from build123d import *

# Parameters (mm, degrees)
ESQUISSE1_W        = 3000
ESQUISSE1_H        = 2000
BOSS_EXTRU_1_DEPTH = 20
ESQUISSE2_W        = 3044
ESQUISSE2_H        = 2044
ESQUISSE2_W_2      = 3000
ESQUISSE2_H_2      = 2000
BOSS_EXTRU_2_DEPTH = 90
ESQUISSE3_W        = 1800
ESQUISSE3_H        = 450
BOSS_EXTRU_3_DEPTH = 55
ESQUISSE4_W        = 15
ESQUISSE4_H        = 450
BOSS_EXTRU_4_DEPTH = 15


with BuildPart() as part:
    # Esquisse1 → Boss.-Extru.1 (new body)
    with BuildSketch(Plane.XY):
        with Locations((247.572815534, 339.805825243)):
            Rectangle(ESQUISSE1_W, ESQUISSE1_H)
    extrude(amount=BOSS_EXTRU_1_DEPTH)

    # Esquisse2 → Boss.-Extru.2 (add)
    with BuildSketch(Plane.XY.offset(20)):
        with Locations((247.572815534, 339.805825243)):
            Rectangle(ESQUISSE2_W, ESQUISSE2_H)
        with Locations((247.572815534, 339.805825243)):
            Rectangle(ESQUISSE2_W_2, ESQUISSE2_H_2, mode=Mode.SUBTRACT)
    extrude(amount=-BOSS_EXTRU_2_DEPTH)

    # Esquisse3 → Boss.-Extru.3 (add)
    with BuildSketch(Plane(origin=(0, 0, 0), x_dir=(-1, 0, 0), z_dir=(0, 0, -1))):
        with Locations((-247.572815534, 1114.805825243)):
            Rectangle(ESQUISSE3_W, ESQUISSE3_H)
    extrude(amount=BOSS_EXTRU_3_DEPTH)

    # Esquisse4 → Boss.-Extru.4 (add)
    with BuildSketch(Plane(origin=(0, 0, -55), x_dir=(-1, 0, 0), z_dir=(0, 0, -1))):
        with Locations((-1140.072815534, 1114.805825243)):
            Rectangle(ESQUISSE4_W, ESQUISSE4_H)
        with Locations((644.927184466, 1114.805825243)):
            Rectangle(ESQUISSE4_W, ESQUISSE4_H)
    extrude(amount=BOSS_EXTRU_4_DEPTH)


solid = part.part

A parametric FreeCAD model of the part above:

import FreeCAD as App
import Part
import Sketcher
from FreeCAD import Vector

doc = App.newDocument("Part")
body = doc.addObject("PartDesign::Body", "Body")

# Sketch on XY plane
sketch1 = body.newObject("Sketcher::SketchObject", "Sketch")
sketch1.AttachmentSupport = (doc.getObject("XY_Plane"), [""])
sketch1.MapMode = "FlatFace"
sketch1.addGeometry([
    Part.LineSegment(Vector(-1252.427184, 1339.805825, 0), Vector(-1252.427184, -660.194175, 0)),
    Part.LineSegment(Vector(-1252.427184, -660.194175, 0), Vector(1747.572816, -660.194175, 0)),
    Part.LineSegment(Vector(1747.572816, -660.194175, 0), Vector(1747.572816, 1339.805825, 0)),
    Part.LineSegment(Vector(1747.572816, 1339.805825, 0), Vector(-1252.427184, 1339.805825, 0)),
], False)
sketch1.addConstraint([
    Sketcher.Constraint("Coincident", 0, 2, 1, 1),
    Sketcher.Constraint("Coincident", 1, 2, 2, 1),
    Sketcher.Constraint("Coincident", 2, 2, 3, 1),
    Sketcher.Constraint("Coincident", 3, 2, 0, 1),
    Sketcher.Constraint("Vertical", 0),
    Sketcher.Constraint("Horizontal", 1),
    Sketcher.Constraint("Vertical", 2),
    Sketcher.Constraint("Horizontal", 3),
    Sketcher.Constraint("DistanceX", 1, 1, 1, 2, 3000.0),
    Sketcher.Constraint("DistanceY", 0, 2, 0, 1, 2000.0),
    Sketcher.Constraint("DistanceX", 0, 2, -1, 1, 1252.427184),
    Sketcher.Constraint("DistanceY", 0, 2, -1, 1, 660.194175),
])
pad1 = body.newObject("PartDesign::Pad", "Pad")
pad1.Profile = sketch1
pad1.Length = 20

# Sketch on XY plane
sketch2 = body.newObject("Sketcher::SketchObject", "Sketch001")
sketch2.AttachmentSupport = (doc.getObject("XY_Plane"), [""])
sketch2.MapMode = "FlatFace"
sketch2.AttachmentOffset = App.Placement(Vector(0, 0, 20), App.Rotation())
sketch2.addGeometry([
    Part.LineSegment(Vector(-1274.427184, 1361.805825, 0), Vector(-1274.427184, -682.194175, 0)),  # 0
    Part.LineSegment(Vector(-1274.427184, -682.194175, 0), Vector(1769.572816, -682.194175, 0)),  # 1
    Part.LineSegment(Vector(1769.572816, -682.194175, 0), Vector(1769.572816, 1361.805825, 0)),  # 2
    Part.LineSegment(Vector(1769.572816, 1361.805825, 0), Vector(-1274.427184, 1361.805825, 0)),  # 3
    Part.LineSegment(Vector(1747.572816, -660.194175, 0), Vector(-1252.427184, -660.194175, 0)),  # 4
    Part.LineSegment(Vector(-1252.427184, -660.194175, 0), Vector(-1252.427184, 1339.805825, 0)),  # 5
    Part.LineSegment(Vector(-1252.427184, 1339.805825, 0), Vector(1747.572816, 1339.805825, 0)),  # 6
    Part.LineSegment(Vector(1747.572816, 1339.805825, 0), Vector(1747.572816, -660.194175, 0)),  # 7
], False)
sketch2.addConstraint([
    Sketcher.Constraint("Coincident", 0, 2, 1, 1),
    Sketcher.Constraint("Coincident", 1, 2, 2, 1),
    Sketcher.Constraint("Coincident", 2, 2, 3, 1),
    Sketcher.Constraint("Coincident", 3, 2, 0, 1),
    Sketcher.Constraint("Coincident", 4, 2, 5, 1),
    Sketcher.Constraint("Coincident", 5, 2, 6, 1),
    Sketcher.Constraint("Coincident", 6, 2, 7, 1),
    Sketcher.Constraint("Coincident", 7, 2, 4, 1),
    Sketcher.Constraint("Vertical", 0),
    Sketcher.Constraint("Horizontal", 1),
    Sketcher.Constraint("Vertical", 2),
    Sketcher.Constraint("Horizontal", 3),
    Sketcher.Constraint("Horizontal", 4),
    Sketcher.Constraint("Vertical", 5),
    Sketcher.Constraint("Horizontal", 6),
    Sketcher.Constraint("Vertical", 7),
    Sketcher.Constraint("DistanceX", 1, 1, 1, 2, 3044.0),
    Sketcher.Constraint("DistanceX", 4, 2, 4, 1, 3000.0),
    Sketcher.Constraint("DistanceY", 0, 2, 0, 1, 2044.0),
    Sketcher.Constraint("DistanceY", 5, 1, 5, 2, 2000.0),
    Sketcher.Constraint("DistanceX", 0, 2, 4, 2, 22.0),
    Sketcher.Constraint("DistanceY", 0, 2, 4, 2, 22.0),
    Sketcher.Constraint("DistanceX", 0, 2, -1, 1, 1274.427184),
    Sketcher.Constraint("DistanceY", 0, 2, -1, 1, 682.194175),
])
pad2 = body.newObject("PartDesign::Pad", "Pad001")
pad2.Profile = sketch2
pad2.Length = 90
pad2.Reversed = True

# Sketch on XY plane
sketch3 = body.newObject("Sketcher::SketchObject", "Sketch002")
sketch3.AttachmentSupport = (doc.getObject("XY_Plane"), [""])
sketch3.MapMode = "FlatFace"
sketch3.addGeometry([
    Part.LineSegment(Vector(1147.572816, 1339.805825, 0), Vector(1147.572816, 889.805825, 0)),
    Part.LineSegment(Vector(1147.572816, 889.805825, 0), Vector(-652.427184, 889.805825, 0)),
    Part.LineSegment(Vector(-652.427184, 889.805825, 0), Vector(-652.427184, 1339.805825, 0)),
    Part.LineSegment(Vector(-652.427184, 1339.805825, 0), Vector(1147.572816, 1339.805825, 0)),
], False)
sketch3.addConstraint([
    Sketcher.Constraint("Coincident", 0, 2, 1, 1),
    Sketcher.Constraint("Coincident", 1, 2, 2, 1),
    Sketcher.Constraint("Coincident", 2, 2, 3, 1),
    Sketcher.Constraint("Coincident", 3, 2, 0, 1),
    Sketcher.Constraint("Vertical", 0),
    Sketcher.Constraint("Horizontal", 1),
    Sketcher.Constraint("Vertical", 2),
    Sketcher.Constraint("Horizontal", 3),
    Sketcher.Constraint("DistanceX", 1, 2, 1, 1, 1800.0),
    Sketcher.Constraint("DistanceY", 0, 2, 0, 1, 450.0),
    Sketcher.Constraint("DistanceX", -1, 1, 0, 2, 1147.572816),
    Sketcher.Constraint("DistanceY", -1, 1, 0, 2, 889.805825),
])
pad3 = body.newObject("PartDesign::Pad", "Pad002")
pad3.Profile = sketch3
pad3.Length = 55
pad3.Reversed = True

# Sketch on XY plane
sketch4 = body.newObject("Sketcher::SketchObject", "Sketch003")
sketch4.AttachmentSupport = (doc.getObject("XY_Plane"), [""])
sketch4.MapMode = "FlatFace"
sketch4.AttachmentOffset = App.Placement(Vector(0, 0, -55), App.Rotation())
sketch4.addGeometry([
    Part.LineSegment(Vector(1147.572816, 1339.805825, 0), Vector(1147.572816, 889.805825, 0)),  # 0
    Part.LineSegment(Vector(1147.572816, 889.805825, 0), Vector(1132.572816, 889.805825, 0)),  # 1
    Part.LineSegment(Vector(1132.572816, 889.805825, 0), Vector(1132.572816, 1339.805825, 0)),  # 2
    Part.LineSegment(Vector(1132.572816, 1339.805825, 0), Vector(1147.572816, 1339.805825, 0)),  # 3
    Part.LineSegment(Vector(-637.427184, 1339.805825, 0), Vector(-637.427184, 889.805825, 0)),  # 4
    Part.LineSegment(Vector(-637.427184, 889.805825, 0), Vector(-652.427184, 889.805825, 0)),  # 5
    Part.LineSegment(Vector(-652.427184, 889.805825, 0), Vector(-652.427184, 1339.805825, 0)),  # 6
    Part.LineSegment(Vector(-652.427184, 1339.805825, 0), Vector(-637.427184, 1339.805825, 0)),  # 7
], False)
sketch4.addConstraint([
    Sketcher.Constraint("Coincident", 0, 2, 1, 1),
    Sketcher.Constraint("Coincident", 1, 2, 2, 1),
    Sketcher.Constraint("Coincident", 2, 2, 3, 1),
    Sketcher.Constraint("Coincident", 3, 2, 0, 1),
    Sketcher.Constraint("Coincident", 4, 2, 5, 1),
    Sketcher.Constraint("Coincident", 5, 2, 6, 1),
    Sketcher.Constraint("Coincident", 6, 2, 7, 1),
    Sketcher.Constraint("Coincident", 7, 2, 4, 1),
    Sketcher.Constraint("Vertical", 0),
    Sketcher.Constraint("Horizontal", 1),
    Sketcher.Constraint("Vertical", 2),
    Sketcher.Constraint("Horizontal", 3),
    Sketcher.Constraint("Vertical", 4),
    Sketcher.Constraint("Horizontal", 5),
    Sketcher.Constraint("Vertical", 6),
    Sketcher.Constraint("Horizontal", 7),
    Sketcher.Constraint("Horizontal", 1, 2, 4, 2),
    Sketcher.Constraint("Horizontal", 3, 2, 6, 2),
    Sketcher.Constraint("Equal", 3, 5),
    Sketcher.Constraint("DistanceX", 1, 2, 1, 1, 15.0),
    Sketcher.Constraint("DistanceY", 0, 2, 0, 1, 450.0),
    Sketcher.Constraint("DistanceX", 4, 2, 1, 2, 1770.0),
    Sketcher.Constraint("DistanceX", -1, 1, 0, 2, 1147.572816),
    Sketcher.Constraint("DistanceY", -1, 1, 0, 2, 889.805825),
])
pad4 = body.newObject("PartDesign::Pad", "Pad003")
pad4.Profile = sketch4
pad4.Length = 15
pad4.Reversed = True

doc.recompute()
